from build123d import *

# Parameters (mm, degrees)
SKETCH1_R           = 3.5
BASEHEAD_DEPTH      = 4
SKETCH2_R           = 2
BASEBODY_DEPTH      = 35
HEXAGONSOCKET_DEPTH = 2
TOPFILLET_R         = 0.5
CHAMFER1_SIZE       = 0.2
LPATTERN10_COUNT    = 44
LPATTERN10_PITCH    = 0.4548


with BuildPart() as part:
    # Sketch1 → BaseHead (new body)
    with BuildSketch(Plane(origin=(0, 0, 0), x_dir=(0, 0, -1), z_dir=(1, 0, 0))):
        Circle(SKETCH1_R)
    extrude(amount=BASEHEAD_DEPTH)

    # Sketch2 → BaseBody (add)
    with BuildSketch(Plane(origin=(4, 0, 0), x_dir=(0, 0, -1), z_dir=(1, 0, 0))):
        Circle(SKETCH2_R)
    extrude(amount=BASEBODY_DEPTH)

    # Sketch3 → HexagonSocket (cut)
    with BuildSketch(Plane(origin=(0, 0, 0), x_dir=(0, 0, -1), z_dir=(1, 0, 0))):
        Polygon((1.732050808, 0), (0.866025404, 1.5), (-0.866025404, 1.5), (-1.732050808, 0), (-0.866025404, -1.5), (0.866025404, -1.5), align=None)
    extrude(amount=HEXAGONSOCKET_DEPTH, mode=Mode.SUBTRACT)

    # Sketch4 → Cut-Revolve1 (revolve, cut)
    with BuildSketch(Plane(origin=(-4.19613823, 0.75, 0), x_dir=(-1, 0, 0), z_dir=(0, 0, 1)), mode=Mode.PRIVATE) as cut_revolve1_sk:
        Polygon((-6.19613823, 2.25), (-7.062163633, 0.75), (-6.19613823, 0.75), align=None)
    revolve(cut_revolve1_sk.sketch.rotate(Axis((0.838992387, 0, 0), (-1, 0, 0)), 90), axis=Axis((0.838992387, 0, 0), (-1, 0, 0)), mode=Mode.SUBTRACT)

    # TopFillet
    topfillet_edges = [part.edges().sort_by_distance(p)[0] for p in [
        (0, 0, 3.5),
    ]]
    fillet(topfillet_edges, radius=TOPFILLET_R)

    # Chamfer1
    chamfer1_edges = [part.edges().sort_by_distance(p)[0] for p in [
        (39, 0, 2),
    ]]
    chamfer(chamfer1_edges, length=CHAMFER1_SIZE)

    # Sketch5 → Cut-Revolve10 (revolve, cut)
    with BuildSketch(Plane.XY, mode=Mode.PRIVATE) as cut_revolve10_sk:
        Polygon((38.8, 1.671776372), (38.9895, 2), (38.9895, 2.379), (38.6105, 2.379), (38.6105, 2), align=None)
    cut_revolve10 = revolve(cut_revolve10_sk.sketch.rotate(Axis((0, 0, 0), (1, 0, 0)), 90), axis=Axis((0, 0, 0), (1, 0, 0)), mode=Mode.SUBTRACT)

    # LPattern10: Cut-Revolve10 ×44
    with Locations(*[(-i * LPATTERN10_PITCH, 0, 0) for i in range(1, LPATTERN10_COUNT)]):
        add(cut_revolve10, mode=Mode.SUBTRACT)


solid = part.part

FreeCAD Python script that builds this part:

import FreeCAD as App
import Part
import Sketcher
Q = App.Units.Quantity


def edges_at(feature, points):
    """Names of the edges that pass closest to the given points."""
    edges = feature.Shape.Edges
    near = lambda p: min(range(len(edges)), key=lambda i: edges[i].distToShape(Part.Vertex(*p))[0])
    return sorted({f"Edge{near(p) + 1}" for p in points})


def add_polygon(sketch, points):
    """Adds a closed chain of lines whose ends are joined by coincident constraints."""
    first, n = sketch.GeometryCount, len(points)
    for a, b in zip(points, points[1:] + points[:1]):
        sketch.addGeometry(Part.LineSegment(App.Vector(*a, 0), App.Vector(*b, 0)), False)
    for i in range(n):
        sketch.addConstraint(Sketcher.Constraint("Coincident", first + i, 2, first + (i + 1) % n, 1))

doc = App.newDocument("Part")
body = doc.addObject("PartDesign::Body", "Body")

# Sketch on YZ plane
sketch1 = doc.addObject("Sketcher::SketchObject", "Sketch")
body.addObject(sketch1)
sketch1.AttachmentSupport = (doc.YZ_Plane, [""])
sketch1.MapMode = "FlatFace"
sketch1.addGeometry(Part.Circle(App.Vector(0, 0, 0), App.Vector(0, 0, 1), 3.5), False)
sketch1.addConstraint(Sketcher.Constraint("Coincident", 0, 3, -1, 1))
sketch1.addConstraint(Sketcher.Constraint("Diameter", 0, 7.0))
pad1 = doc.addObject("PartDesign::Pad", "Pad")
body.addObject(pad1)
pad1.Profile = sketch1
pad1.Length = 4

# Sketch on YZ plane
sketch2 = doc.addObject("Sketcher::SketchObject", "Sketch001")
body.addObject(sketch2)
sketch2.AttachmentSupport = (doc.YZ_Plane, [""])
sketch2.MapMode = "FlatFace"
sketch2.AttachmentOffset = App.Placement(App.Vector(0, 0, 4), App.Rotation())
sketch2.addGeometry(Part.Circle(App.Vector(0, 0, 0), App.Vector(0, 0, 1), 2), False)
sketch2.addConstraint(Sketcher.Constraint("Coincident", 0, 3, -1, 1))
sketch2.addConstraint(Sketcher.Constraint("Diameter", 0, 4.0))
pad2 = doc.addObject("PartDesign::Pad", "Pad001")
body.addObject(pad2)
pad2.Profile = sketch2
pad2.Length = 35

# Sketch on YZ plane
sketch3 = doc.addObject("Sketcher::SketchObject", "Sketch002")
body.addObject(sketch3)
sketch3.AttachmentSupport = (doc.YZ_Plane, [""])
sketch3.MapMode = "FlatFace"
add_polygon(sketch3, [(0, -1.7), (1.5, -0.9), (1.5, 0.9), (0, 1.7), (-1.5, 0.9), (-1.5, -0.9)])  # lines 0-5
sketch3.addConstraint(Sketcher.Constraint("Vertical", 1))
sketch3.addConstraint(Sketcher.Constraint("Vertical", 4))
sketch3.addConstraint(Sketcher.Constraint("Symmetric", 0, 2, 3, 2, -1, 1))
sketch3.addConstraint(Sketcher.Constraint("Symmetric", 2, 2, 5, 2, -1, 1))
sketch3.addConstraint(Sketcher.Constraint("PointOnObject", 2, 2, -2))
sketch3.addConstraint(Sketcher.Constraint("Parallel", 2, 5))
sketch3.addConstraint(Sketcher.Constraint("Horizontal", 1, 2, 3, 2))
sketch3.addConstraint(Sketcher.Constraint("Angle", 0, Q("30 deg")))
sketch3.addConstraint(Sketcher.Constraint("DistanceX", 3, 2, 1, 2, 3.0))
sketch3.addConstraint(Sketcher.Constraint("DistanceY", 1, 1, 1, 2, 1.732051))
pocket1 = doc.addObject("PartDesign::Pocket", "Pocket")
body.addObject(pocket1)
pocket1.Profile = sketch3
pocket1.Length = 2
pocket1.Reversed = True

# Sketch on XY plane
sketch4 = doc.addObject("Sketcher::SketchObject", "Sketch003")
body.addObject(sketch4)
sketch4.AttachmentSupport = (doc.XY_Plane, [""])
sketch4.MapMode = "FlatFace"
add_polygon(sketch4, [(2, -1.5), (2.9, 0), (2, 0)])  # lines 0-2
sketch4.addConstraint(Sketcher.Constraint("Horizontal", 1))
sketch4.addConstraint(Sketcher.Constraint("Vertical", 2))
sketch4.addConstraint(Sketcher.Constraint("PointOnObject", 0, 2, -1))
sketch4.addConstraint(Sketcher.Constraint("Angle", 0, Q("60 deg")))
sketch4.addConstraint(Sketcher.Constraint("DistanceY", 2, 2, 2, 1, 1.5))
sketch4.addConstraint(Sketcher.Constraint("DistanceX", -1, 1, 1, 2, 2.0))
groove = doc.addObject("PartDesign::Groove", "Groove")
body.addObject(groove)
groove.Profile = sketch4
groove.ReferenceAxis = (sketch4, ["H_Axis"])
groove.Angle = 360
doc.recompute()

fillet = doc.addObject("PartDesign::Fillet", "Fillet")
body.addObject(fillet)
fillet.Base = (groove, edges_at(groove, [(0, 0, 3.5)]))
fillet.Radius = 0.5
doc.recompute()

chamfer = doc.addObject("PartDesign::Chamfer", "Chamfer")
body.addObject(chamfer)
chamfer.Base = (fillet, edges_at(fillet, [(39, 0, 2)]))
chamfer.Size = 0.2

# Sketch on XY plane
sketch5 = doc.addObject("Sketcher::SketchObject", "Sketch004")
body.addObject(sketch5)
sketch5.AttachmentSupport = (doc.XY_Plane, [""])
sketch5.MapMode = "FlatFace"
add_polygon(sketch5, [(38.8, 1.67), (38.99, 2), (38.99, 2.38), (38.61, 2.38), (38.61, 2)])  # lines 0-4
sketch5.addConstraint(Sketcher.Constraint("Vertical", 1))
sketch5.addConstraint(Sketcher.Constraint("Horizontal", 2))
sketch5.addConstraint(Sketcher.Constraint("Vertical", 3))
sketch5.addConstraint(Sketcher.Constraint("Horizontal", 0, 2, 3, 2))
sketch5.addConstraint(Sketcher.Constraint("Equal", 2, 1))
sketch5.addConstraint(Sketcher.Constraint("Equal", 0, 4))
sketch5.addConstraint(Sketcher.Constraint("Angle", 0, Q("60 deg")))
sketch5.addConstraint(Sketcher.Constraint("DistanceY", -1, 1, 0, 2, 2.0))
sketch5.addConstraint(Sketcher.Constraint("DistanceX", -1, 1, 4, 2, 38.8))
sketch5.addConstraint(Sketcher.Constraint("DistanceX", 2, 2, 2, 1, 0.379))
groove2 = doc.addObject("PartDesign::Groove", "Groove001")
body.addObject(groove2)
groove2.Profile = sketch5
groove2.ReferenceAxis = (sketch5, ["H_Axis"])
groove2.Angle = 360
doc.recompute()

linearpattern = doc.addObject("PartDesign::LinearPattern", "LinearPattern")
body.addObject(linearpattern)
linearpattern.Originals = [groove2]
linearpattern.Direction = (doc.X_Axis, [""])
linearpattern.Mode = "offset"
linearpattern.Offset = 0.4548
linearpattern.Occurrences = 44
linearpattern.Reversed = True
body.Tip = linearpattern

doc.recompute()
